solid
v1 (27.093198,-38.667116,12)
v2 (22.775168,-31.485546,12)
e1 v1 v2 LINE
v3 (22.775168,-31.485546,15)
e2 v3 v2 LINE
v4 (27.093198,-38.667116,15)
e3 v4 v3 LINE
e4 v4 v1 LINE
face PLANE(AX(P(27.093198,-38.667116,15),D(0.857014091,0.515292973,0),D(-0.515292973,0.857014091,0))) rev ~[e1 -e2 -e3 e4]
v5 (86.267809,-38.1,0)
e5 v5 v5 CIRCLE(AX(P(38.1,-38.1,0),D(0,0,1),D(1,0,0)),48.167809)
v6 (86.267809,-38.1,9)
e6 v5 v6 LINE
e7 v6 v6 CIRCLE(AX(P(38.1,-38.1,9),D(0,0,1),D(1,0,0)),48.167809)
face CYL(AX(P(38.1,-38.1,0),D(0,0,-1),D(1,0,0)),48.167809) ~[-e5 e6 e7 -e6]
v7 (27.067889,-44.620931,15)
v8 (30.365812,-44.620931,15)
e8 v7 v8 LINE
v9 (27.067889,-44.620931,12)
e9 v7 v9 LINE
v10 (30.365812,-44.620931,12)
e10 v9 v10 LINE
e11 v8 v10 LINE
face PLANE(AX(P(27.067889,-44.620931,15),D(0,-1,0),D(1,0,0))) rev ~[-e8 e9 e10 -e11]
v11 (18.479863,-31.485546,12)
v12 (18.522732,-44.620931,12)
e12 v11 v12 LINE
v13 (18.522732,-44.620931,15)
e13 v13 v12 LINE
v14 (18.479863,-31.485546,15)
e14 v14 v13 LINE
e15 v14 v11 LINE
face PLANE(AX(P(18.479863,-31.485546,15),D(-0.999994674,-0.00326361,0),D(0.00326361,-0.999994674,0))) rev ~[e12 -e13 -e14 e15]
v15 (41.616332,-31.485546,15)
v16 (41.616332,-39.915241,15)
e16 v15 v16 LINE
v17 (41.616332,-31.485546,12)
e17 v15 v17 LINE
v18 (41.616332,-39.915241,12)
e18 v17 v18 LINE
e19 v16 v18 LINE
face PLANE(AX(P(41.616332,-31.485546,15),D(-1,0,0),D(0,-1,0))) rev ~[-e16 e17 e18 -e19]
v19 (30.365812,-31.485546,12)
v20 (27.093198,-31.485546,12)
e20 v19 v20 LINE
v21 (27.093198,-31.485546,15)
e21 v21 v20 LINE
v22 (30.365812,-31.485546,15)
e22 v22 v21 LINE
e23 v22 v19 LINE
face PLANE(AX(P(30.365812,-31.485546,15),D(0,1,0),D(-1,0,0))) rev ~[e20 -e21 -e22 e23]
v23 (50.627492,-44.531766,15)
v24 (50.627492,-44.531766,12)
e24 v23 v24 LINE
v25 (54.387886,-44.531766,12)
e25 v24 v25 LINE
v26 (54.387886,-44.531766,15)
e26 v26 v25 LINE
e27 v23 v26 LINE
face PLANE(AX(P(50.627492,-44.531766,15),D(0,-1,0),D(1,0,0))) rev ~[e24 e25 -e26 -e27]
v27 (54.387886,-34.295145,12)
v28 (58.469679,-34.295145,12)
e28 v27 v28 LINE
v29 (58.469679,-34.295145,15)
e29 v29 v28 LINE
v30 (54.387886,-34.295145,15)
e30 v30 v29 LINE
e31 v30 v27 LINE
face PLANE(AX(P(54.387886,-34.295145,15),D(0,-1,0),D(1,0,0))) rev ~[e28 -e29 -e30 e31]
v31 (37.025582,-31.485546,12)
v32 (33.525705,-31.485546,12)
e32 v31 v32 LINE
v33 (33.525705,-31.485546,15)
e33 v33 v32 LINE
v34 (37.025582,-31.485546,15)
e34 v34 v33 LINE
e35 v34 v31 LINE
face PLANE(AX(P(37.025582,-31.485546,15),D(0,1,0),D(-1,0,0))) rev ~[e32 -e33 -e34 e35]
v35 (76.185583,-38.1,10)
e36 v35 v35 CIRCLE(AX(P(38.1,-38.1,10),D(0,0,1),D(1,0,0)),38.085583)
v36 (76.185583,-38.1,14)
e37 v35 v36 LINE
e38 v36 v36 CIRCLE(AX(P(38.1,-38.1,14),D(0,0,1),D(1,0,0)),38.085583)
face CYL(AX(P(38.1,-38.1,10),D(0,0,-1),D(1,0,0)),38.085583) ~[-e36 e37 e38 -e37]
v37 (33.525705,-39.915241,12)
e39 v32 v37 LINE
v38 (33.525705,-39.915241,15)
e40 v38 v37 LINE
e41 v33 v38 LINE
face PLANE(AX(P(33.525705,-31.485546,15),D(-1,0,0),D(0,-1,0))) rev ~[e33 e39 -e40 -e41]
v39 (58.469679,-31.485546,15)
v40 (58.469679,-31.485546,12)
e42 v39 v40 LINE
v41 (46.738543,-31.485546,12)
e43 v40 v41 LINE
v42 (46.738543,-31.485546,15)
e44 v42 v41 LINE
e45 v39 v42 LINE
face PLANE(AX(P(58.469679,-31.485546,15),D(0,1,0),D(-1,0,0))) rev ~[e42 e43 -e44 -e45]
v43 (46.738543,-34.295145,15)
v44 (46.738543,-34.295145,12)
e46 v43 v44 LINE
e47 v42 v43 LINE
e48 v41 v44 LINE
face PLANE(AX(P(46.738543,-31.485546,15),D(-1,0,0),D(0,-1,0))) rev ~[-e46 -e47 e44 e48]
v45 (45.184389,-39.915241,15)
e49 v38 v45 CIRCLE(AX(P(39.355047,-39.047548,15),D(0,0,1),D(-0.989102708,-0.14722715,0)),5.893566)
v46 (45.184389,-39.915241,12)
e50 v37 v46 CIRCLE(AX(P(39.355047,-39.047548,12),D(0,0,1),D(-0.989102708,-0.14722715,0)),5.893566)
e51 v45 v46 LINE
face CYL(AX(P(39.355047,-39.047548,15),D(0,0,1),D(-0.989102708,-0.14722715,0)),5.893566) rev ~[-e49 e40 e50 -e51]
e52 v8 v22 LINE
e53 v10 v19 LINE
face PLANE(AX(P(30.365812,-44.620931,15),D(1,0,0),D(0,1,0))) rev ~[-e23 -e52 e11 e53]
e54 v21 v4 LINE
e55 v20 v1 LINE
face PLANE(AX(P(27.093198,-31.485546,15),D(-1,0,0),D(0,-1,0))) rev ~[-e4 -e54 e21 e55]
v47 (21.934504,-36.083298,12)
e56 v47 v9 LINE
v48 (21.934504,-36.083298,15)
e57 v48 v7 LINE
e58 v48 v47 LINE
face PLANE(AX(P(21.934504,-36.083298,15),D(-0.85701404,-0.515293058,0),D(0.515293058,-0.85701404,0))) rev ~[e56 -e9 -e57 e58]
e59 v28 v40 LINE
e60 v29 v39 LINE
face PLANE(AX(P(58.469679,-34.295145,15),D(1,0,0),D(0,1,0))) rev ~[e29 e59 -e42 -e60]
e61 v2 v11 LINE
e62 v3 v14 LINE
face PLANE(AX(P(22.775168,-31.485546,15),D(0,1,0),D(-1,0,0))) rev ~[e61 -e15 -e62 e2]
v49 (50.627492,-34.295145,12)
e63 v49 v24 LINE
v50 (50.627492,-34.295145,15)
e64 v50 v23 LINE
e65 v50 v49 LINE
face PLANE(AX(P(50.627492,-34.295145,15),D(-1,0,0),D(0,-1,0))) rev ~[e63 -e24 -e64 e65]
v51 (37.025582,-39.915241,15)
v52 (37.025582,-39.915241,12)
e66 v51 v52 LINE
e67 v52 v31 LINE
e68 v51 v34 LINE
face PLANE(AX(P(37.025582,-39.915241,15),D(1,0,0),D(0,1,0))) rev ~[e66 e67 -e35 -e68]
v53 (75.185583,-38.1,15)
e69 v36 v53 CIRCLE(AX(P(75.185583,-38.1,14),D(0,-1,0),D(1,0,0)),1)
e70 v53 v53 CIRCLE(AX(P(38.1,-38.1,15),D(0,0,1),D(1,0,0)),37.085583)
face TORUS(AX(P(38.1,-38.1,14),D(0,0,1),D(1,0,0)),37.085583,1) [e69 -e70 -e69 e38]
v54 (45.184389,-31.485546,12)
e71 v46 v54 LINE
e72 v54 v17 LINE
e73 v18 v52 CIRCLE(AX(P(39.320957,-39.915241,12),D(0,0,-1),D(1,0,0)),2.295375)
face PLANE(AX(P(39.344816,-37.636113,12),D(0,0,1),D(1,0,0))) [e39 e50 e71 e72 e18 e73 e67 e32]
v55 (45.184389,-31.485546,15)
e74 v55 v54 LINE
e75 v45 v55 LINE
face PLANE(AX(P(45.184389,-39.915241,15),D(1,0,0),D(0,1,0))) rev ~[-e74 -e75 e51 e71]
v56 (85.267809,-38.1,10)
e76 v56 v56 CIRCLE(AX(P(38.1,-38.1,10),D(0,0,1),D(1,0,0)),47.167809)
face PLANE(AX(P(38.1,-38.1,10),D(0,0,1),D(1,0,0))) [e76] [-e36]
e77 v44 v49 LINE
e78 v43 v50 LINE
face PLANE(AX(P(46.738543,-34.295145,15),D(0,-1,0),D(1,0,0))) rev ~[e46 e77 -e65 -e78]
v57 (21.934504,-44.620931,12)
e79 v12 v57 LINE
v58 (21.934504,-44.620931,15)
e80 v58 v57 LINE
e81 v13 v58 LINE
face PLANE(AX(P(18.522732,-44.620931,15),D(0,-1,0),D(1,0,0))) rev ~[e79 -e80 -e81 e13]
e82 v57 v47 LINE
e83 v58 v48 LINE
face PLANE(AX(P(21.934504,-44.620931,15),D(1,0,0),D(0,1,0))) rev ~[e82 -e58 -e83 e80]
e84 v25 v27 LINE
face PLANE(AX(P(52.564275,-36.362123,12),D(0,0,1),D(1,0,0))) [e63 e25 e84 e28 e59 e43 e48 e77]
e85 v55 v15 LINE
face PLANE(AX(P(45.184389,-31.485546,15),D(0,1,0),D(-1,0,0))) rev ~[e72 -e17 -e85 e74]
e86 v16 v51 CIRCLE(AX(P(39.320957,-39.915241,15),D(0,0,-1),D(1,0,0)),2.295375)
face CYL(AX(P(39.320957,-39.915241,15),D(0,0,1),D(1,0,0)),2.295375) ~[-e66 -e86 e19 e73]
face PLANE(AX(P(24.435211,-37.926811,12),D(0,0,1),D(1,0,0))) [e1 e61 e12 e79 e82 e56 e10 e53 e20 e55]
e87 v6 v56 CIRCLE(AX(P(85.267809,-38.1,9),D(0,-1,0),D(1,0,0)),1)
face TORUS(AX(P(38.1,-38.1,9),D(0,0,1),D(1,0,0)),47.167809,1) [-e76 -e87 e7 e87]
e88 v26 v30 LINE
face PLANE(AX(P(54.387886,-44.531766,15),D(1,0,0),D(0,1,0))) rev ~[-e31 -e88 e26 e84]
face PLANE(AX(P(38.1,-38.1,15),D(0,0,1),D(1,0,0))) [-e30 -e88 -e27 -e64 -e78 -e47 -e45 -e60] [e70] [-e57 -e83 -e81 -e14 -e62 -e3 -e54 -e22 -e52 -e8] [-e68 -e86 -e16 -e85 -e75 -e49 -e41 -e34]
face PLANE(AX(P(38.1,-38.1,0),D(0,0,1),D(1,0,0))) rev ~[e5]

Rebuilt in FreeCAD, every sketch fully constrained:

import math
import FreeCAD as App
import Part
import Sketcher
from FreeCAD import Vector


def edges_at(feature, points):
    """Names of the edges that pass closest to the given points."""
    edges = feature.Shape.Edges
    near = lambda p: min(range(len(edges)), key=lambda i: edges[i].distToShape(Part.Vertex(*p))[0])
    return sorted({f"Edge{near(p) + 1}" for p in points})


def add_polygon(sketch, points):
    """Adds a closed chain of lines whose ends are joined by coincident constraints."""
    first, n = sketch.GeometryCount, len(points)
    for a, b in zip(points, points[1:] + points[:1]):
        sketch.addGeometry(Part.LineSegment(App.Vector(*a, 0), App.Vector(*b, 0)), False)
    for i in range(n):
        sketch.addConstraint(Sketcher.Constraint("Coincident", first + i, 2, first + (i + 1) % n, 1))

doc = App.newDocument("Part")
params = doc.addObject("Spreadsheet::Sheet", "Params")
for row, (alias, value) in enumerate([
    ("pad1_length", "10 mm"),
    ("pad2_length", "5 mm"),
    ("pocket1_length", "3 mm"),
    ("fillet_radius", "1 mm"),
], start=1):
    params.set(f"A{row}", alias)
    params.set(f"B{row}", "=" + value)
    params.setAlias(f"B{row}", alias)

body = doc.addObject("PartDesign::Body", "Body")

# Sketch on XY plane
sketch1 = body.newObject("Sketcher::SketchObject", "Sketch")
sketch1.AttachmentSupport = (doc.getObject("XY_Plane"), [""])
sketch1.MapMode = "FlatFace"
sketch1.addGeometry(Part.Circle(Vector(38, -38, 0), Vector(0, 0, 1), 48), False)
sketch1.addConstraint(Sketcher.Constraint("DistanceX", -1, 1, 0, 3, 38.1))
sketch1.addConstraint(Sketcher.Constraint("DistanceY", 0, 3, -1, 1, 38.1))
sketch1.addConstraint(Sketcher.Constraint("Diameter", 0, 96.335618))
pad1 = body.newObject("PartDesign::Pad", "Pad")
pad1.Profile = sketch1
pad1.setExpression("Length", "Params.pad1_length")

# Sketch on XY plane
sketch2 = body.newObject("Sketcher::SketchObject", "Sketch001")
sketch2.AttachmentSupport = (doc.getObject("XY_Plane"), [""])
sketch2.MapMode = "FlatFace"
sketch2.AttachmentOffset = App.Placement(Vector(0, 0, 10), App.Rotation())
sketch2.addGeometry(Part.Circle(Vector(38, -38, 0), Vector(0, 0, 1), 38), False)
sketch2.addConstraint(Sketcher.Constraint("DistanceX", -1, 1, 0, 3, 38.1))
sketch2.addConstraint(Sketcher.Constraint("DistanceY", 0, 3, -1, 1, 38.1))
sketch2.addConstraint(Sketcher.Constraint("Diameter", 0, 76.171166))
pad2 = body.newObject("PartDesign::Pad", "Pad001")
pad2.Profile = sketch2
pad2.setExpression("Length", "Params.pad2_length")

# Sketch on XY plane
sketch3 = body.newObject("Sketcher::SketchObject", "Sketch002")
sketch3.AttachmentSupport = (doc.getObject("XY_Plane"), [""])
sketch3.MapMode = "FlatFace"
sketch3.AttachmentOffset = App.Placement(Vector(0, 0, 15), App.Rotation())
add_polygon(sketch3, [(22.8, -31.5), (18.5, -31.5), (18.5, -44.6), (21.9, -44.6), (21.9, -36.1), (27.1, -44.6), (30.4, -44.6), (30.4, -31.5), (27.1, -31.5), (27.1, -38.7)])  # lines 0-9
sketch3.addGeometry(Part.LineSegment(Vector(37, -31.5, 0), Vector(33.5, -31.5, 0)), False)  # 10
sketch3.addGeometry(Part.LineSegment(Vector(33.5, -31.5, 0), Vector(33.5, -39.9, 0)), False)  # 11
sketch3.addGeometry(Part.ArcOfCircle(Part.Circle(Vector(39.4, -39, 0), Vector(0, 0, 1), 5.9), math.radians(-172), math.radians(-8)), False)  # 12
sketch3.addGeometry(Part.LineSegment(Vector(45.2, -39.9, 0), Vector(45.2, -31.5, 0)), False)  # 13
sketch3.addGeometry(Part.LineSegment(Vector(45.2, -31.5, 0), Vector(41.6, -31.5, 0)), False)  # 14
sketch3.addGeometry(Part.LineSegment(Vector(41.6, -31.5, 0), Vector(41.6, -39.9, 0)), False)  # 15
sketch3.addGeometry(Part.ArcOfCircle(Part.Circle(Vector(39.3, -39.9, 0), Vector(0, 0, 1), 2.3), math.radians(180), math.radians(360)), False)  # 16
sketch3.addGeometry(Part.LineSegment(Vector(37, -39.9, 0), Vector(37, -31.5, 0)), False)  # 17
add_polygon(sketch3, [(58.5, -31.5), (46.7, -31.5), (46.7, -34.3), (50.6, -34.3), (50.6, -44.5), (54.4, -44.5), (54.4, -34.3), (58.5, -34.3)])  # lines 18-25
sketch3.addConstraint(Sketcher.Constraint("Coincident", 10, 2, 11, 1))
sketch3.addConstraint(Sketcher.Constraint("Coincident", 11, 2, 12, 1))
sketch3.addConstraint(Sketcher.Constraint("Coincident", 12, 2, 13, 1))
sketch3.addConstraint(Sketcher.Constraint("Coincident", 13, 2, 14, 1))
sketch3.addConstraint(Sketcher.Constraint("Coincident", 14, 2, 15, 1))
sketch3.addConstraint(Sketcher.Constraint("Tangent", 15, 2, 16, 2))
sketch3.addConstraint(Sketcher.Constraint("Tangent", 16, 1, 17, 1))
sketch3.addConstraint(Sketcher.Constraint("Coincident", 17, 2, 10, 1))
sketch3.addConstraint(Sketcher.Constraint("Horizontal", 0))
sketch3.addConstraint(Sketcher.Constraint("Horizontal", 2))
sketch3.addConstraint(Sketcher.Constraint("Vertical", 3))
sketch3.addConstraint(Sketcher.Constraint("Horizontal", 5))
sketch3.addConstraint(Sketcher.Constraint("Vertical", 6))
sketch3.addConstraint(Sketcher.Constraint("Horizontal", 7))
sketch3.addConstraint(Sketcher.Constraint("Vertical", 8))
sketch3.addConstraint(Sketcher.Constraint("Horizontal", 10))
sketch3.addConstraint(Sketcher.Constraint("Vertical", 11))
sketch3.addConstraint(Sketcher.Constraint("Vertical", 13))
sketch3.addConstraint(Sketcher.Constraint("Horizontal", 14))
sketch3.addConstraint(Sketcher.Constraint("Vertical", 15))
sketch3.addConstraint(Sketcher.Constraint("Vertical", 17))
sketch3.addConstraint(Sketcher.Constraint("Horizontal", 18))
sketch3.addConstraint(Sketcher.Constraint("Vertical", 19))
sketch3.addConstraint(Sketcher.Constraint("Horizontal", 20))
sketch3.addConstraint(Sketcher.Constraint("Vertical", 21))
sketch3.addConstraint(Sketcher.Constraint("Horizontal", 22))
sketch3.addConstraint(Sketcher.Constraint("Vertical", 23))
sketch3.addConstraint(Sketcher.Constraint("Horizontal", 24))
sketch3.addConstraint(Sketcher.Constraint("Vertical", 25))
sketch3.addConstraint(Sketcher.Constraint("Parallel", 4, 9))
sketch3.addConstraint(Sketcher.Constraint("Horizontal", 2, 2, 4, 2))
sketch3.addConstraint(Sketcher.Constraint("Horizontal", 0, 2, 6, 2))
sketch3.addConstraint(Sketcher.Constraint("Horizontal", 9, 2, 10, 2))
sketch3.addConstraint(Sketcher.Constraint("Horizontal", 16, 3, 11, 2))
sketch3.addConstraint(Sketcher.Constraint("Horizontal", 11, 2, 12, 2))
sketch3.addConstraint(Sketcher.Constraint("Horizontal", 10, 2, 13, 2))
sketch3.addConstraint(Sketcher.Constraint("Horizontal", 17, 2, 18, 2))
sketch3.addConstraint(Sketcher.Constraint("Horizontal", 20, 2, 23, 2))
sketch3.addConstraint(Sketcher.Constraint("DistanceY", 19, 2, 19, 1, 2.809599))
sketch3.addConstraint(Sketcher.Constraint("Radius", 12, 5.893566))
sketch3.addConstraint(Sketcher.Constraint("Radius", 16, 2.295375))
sketch3.addConstraint(Sketcher.Constraint("DistanceX", 2, 1, 2, 2, 3.411772))
sketch3.addConstraint(Sketcher.Constraint("DistanceX", 20, 1, 20, 2, 3.888949))
sketch3.addConstraint(Sketcher.Constraint("DistanceY", 8, 2, 8, 1, 7.18157))
sketch3.addConstraint(Sketcher.Constraint("DistanceY", 21, 2, 21, 1, 10.236621))
sketch3.addConstraint(Sketcher.Constraint("DistanceX", -1, 1, 7, 2, 27.093198))
sketch3.addConstraint(Sketcher.Constraint("Distance", 4, 9.962069))
sketch3.addConstraint(Sketcher.Constraint("DistanceX", 0, 2, 0, 1, 4.295305))
sketch3.addConstraint(Sketcher.Constraint("DistanceX", 5, 1, 5, 2, 3.297923))
sketch3.addConstraint(Sketcher.Constraint("DistanceX", 7, 2, 7, 1, 3.272614))
sketch3.addConstraint(Sketcher.Constraint("DistanceX", 10, 2, 10, 1, 3.499877))
sketch3.addConstraint(Sketcher.Constraint("DistanceX", 14, 2, 14, 1, 3.568057))
sketch3.addConstraint(Sketcher.Constraint("DistanceX", 18, 2, 18, 1, 11.731136))
sketch3.addConstraint(Sketcher.Constraint("DistanceX", 22, 1, 22, 2, 3.760394))
sketch3.addConstraint(Sketcher.Constraint("DistanceY", 3, 1, 3, 2, 8.537633))
sketch3.addConstraint(Sketcher.Constraint("DistanceY", 6, 1, 6, 2, 13.135385))
sketch3.addConstraint(Sketcher.Constraint("DistanceY", 11, 2, 11, 1, 8.429695))
sketch3.addConstraint(Sketcher.Constraint("DistanceY", 12, 3, -1, 1, 39.047548))
sketch3.addConstraint(Sketcher.Constraint("DistanceX", -1, 1, 12, 2, 45.184389))
sketch3.addConstraint(Sketcher.Constraint("DistanceX", -1, 1, 20, 2, 50.627492))
pocket1 = body.newObject("PartDesign::Pocket", "Pocket")
pocket1.Profile = sketch3
pocket1.setExpression("Length", "Params.pocket1_length")
doc.recompute()

fillet = body.newObject("PartDesign::Fillet", "Fillet")
fillet.Base = (pocket1, edges_at(pocket1, [(-10.068, -38.1, 10), (0.014, -38.1, 15)]))
fillet.setExpression("Radius", "Params.fillet_radius")

doc.recompute()
